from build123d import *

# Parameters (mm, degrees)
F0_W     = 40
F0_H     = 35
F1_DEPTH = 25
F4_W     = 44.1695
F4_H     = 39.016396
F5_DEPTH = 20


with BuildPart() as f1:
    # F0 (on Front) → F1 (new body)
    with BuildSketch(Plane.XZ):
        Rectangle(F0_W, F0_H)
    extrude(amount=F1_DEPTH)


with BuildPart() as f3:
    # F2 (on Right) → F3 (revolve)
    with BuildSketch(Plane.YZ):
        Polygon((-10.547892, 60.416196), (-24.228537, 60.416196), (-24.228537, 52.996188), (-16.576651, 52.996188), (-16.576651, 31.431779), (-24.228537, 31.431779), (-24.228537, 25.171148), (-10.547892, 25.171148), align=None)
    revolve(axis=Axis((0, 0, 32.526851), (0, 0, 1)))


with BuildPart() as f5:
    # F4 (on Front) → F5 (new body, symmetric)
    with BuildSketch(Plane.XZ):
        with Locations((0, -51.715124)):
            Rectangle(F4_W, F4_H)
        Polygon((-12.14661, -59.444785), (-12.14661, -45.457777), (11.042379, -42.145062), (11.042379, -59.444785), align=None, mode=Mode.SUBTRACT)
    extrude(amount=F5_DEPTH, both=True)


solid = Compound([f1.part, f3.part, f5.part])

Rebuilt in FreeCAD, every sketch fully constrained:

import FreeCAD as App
import Part
import Sketcher

V = App.Vector


def add_polygon(sketch, points):
    """Adds a closed chain of lines whose ends are joined by coincident constraints."""
    first, n = sketch.GeometryCount, len(points)
    for a, b in zip(points, points[1:] + points[:1]):
        sketch.addGeometry(Part.LineSegment(App.Vector(*a, 0), App.Vector(*b, 0)), False)
    for i in range(n):
        sketch.addConstraint(Sketcher.Constraint("Coincident", first + i, 2, first + (i + 1) % n, 1))

doc = App.newDocument("Part")
params = doc.addObject("Spreadsheet::Sheet", "Params")
for row, (alias, value) in enumerate([
    ("sketch1_width", "40 mm"),
    ("sketch1_height", "35 mm"),
    ("pad1_length", "25 mm"),
    ("revolution_angle", "360 deg"),
    ("pad2_length", "40 mm"),
], start=1):
    params.set(f"A{row}", alias)
    params.set(f"B{row}", "=" + value)
    params.setAlias(f"B{row}", alias)

body = doc.addObject("PartDesign::Body", "Body")

# Sketch on XZ plane
sketch1 = body.newObject("Sketcher::SketchObject", "Sketch")
sketch1.AttachmentSupport = (doc.getObject("XZ_Plane"), [""])
sketch1.MapMode = "FlatFace"
add_polygon(sketch1, [(-20, 17.5), (-20, -17.5), (20, -17.5), (20, 17.5)])  # lines 0-3
sketch1.addConstraint([
    Sketcher.Constraint("Vertical", 0),
    Sketcher.Constraint("Horizontal", 1),
    Sketcher.Constraint("Vertical", 2),
    Sketcher.Constraint("Horizontal", 3),
    Sketcher.Constraint("Symmetric", 0, 2, 2, 2, -1, 1),
    Sketcher.Constraint("DistanceX", 1, 1, 1, 2, 40.0),
    Sketcher.Constraint("DistanceY", 0, 2, 0, 1, 35.0),
])
sketch1.setExpression("Constraints[9]", "Params.sketch1_width")
sketch1.setExpression("Constraints[10]", "Params.sketch1_height")
pad1 = body.newObject("PartDesign::Pad", "Pad")
pad1.Profile = sketch1
pad1.setExpression("Length", "Params.pad1_length")
body2 = doc.addObject("PartDesign::Body", "Body001")

# Sketch on YZ plane
sketch2 = body2.newObject("Sketcher::SketchObject", "Sketch001")
sketch2.AttachmentSupport = (doc.getObject("YZ_Plane001"), [""])
sketch2.MapMode = "FlatFace"
add_polygon(sketch2, [(-10.547892, 60.416196), (-24.228537, 60.416196), (-24.228537, 52.996188), (-16.576651, 52.996188), (-16.576651, 31.431779), (-24.228537, 31.431779), (-24.228537, 25.171148), (-10.547892, 25.171148)])  # lines 0-7
sketch2.addConstraint([
    Sketcher.Constraint("Horizontal", 0),
    Sketcher.Constraint("Vertical", 1),
    Sketcher.Constraint("Horizontal", 2),
    Sketcher.Constraint("Vertical", 3),
    Sketcher.Constraint("Horizontal", 4),
    Sketcher.Constraint("Vertical", 5),
    Sketcher.Constraint("Horizontal", 6),
    Sketcher.Constraint("Vertical", 7),
    Sketcher.Constraint("Vertical", 1, 2, 4, 2),
    Sketcher.Constraint("DistanceY", 1, 2, 1, 1, 7.420008),
    Sketcher.Constraint("DistanceY", 3, 2, 3, 1, 21.564409),
    Sketcher.Constraint("DistanceY", 5, 2, 5, 1, 6.260631),
    Sketcher.Constraint("DistanceX", 0, 2, 0, 1, 13.680645),
    Sketcher.Constraint("DistanceX", 2, 1, 2, 2, 7.651886),
    Sketcher.Constraint("DistanceX", 2, 2, -1, 1, 16.576651),
    Sketcher.Constraint("DistanceY", -1, 1, 3, 2, 31.431779),
])
revolution = body2.newObject("PartDesign::Revolution", "Revolution")
revolution.Profile = sketch2
revolution.ReferenceAxis = (sketch2, ["V_Axis"])
revolution.setExpression("Angle", "Params.revolution_angle")
body3 = doc.addObject("PartDesign::Body", "Body002")

# Sketch on XZ plane
sketch3 = body3.newObject("Sketcher::SketchObject", "Sketch002")
sketch3.AttachmentSupport = (doc.getObject("XZ_Plane002"), [""])
sketch3.MapMode = "FlatFace"
add_polygon(sketch3, [(-22.08475, -32.206926), (-22.08475, -71.223322), (22.08475, -71.223322), (22.08475, -32.206926)])  # lines 0-3
add_polygon(sketch3, [(11.042379, -59.444785), (-12.14661, -59.444785), (-12.14661, -45.457777), (11.042379, -42.145062)])  # lines 4-7
sketch3.addConstraint([
    Sketcher.Constraint("Vertical", 0),
    Sketcher.Constraint("Horizontal", 1),
    Sketcher.Constraint("Vertical", 2),
    Sketcher.Constraint("Horizontal", 3),
    Sketcher.Constraint("Horizontal", 4),
    Sketcher.Constraint("Vertical", 5),
    Sketcher.Constraint("Vertical", 7),
    Sketcher.Constraint("DistanceX", 1, 1, 1, 2, 44.1695),
    Sketcher.Constraint("DistanceX", 4, 2, 4, 1, 23.188989),
    Sketcher.Constraint("DistanceY", 5, 1, 5, 2, 13.987008),
    Sketcher.Constraint("DistanceY", 0, 2, 0, 1, 39.016396),
    Sketcher.Constraint("DistanceY", 7, 2, 7, 1, 17.299723),
    Sketcher.Constraint("DistanceX", 0, 2, -1, 1, 22.08475),
    Sketcher.Constraint("DistanceY", 0, 2, -1, 1, 71.223322),
    Sketcher.Constraint("DistanceX", 4, 2, -1, 1, 12.14661),
    Sketcher.Constraint("DistanceY", 4, 2, 3, 2, 27.237859),
])
pad2 = body3.newObject("PartDesign::Pad", "Pad001")
pad2.Profile = sketch3
pad2.setExpression("Length", "Params.pad2_length")
pad2.Midplane = True

doc.recompute()
